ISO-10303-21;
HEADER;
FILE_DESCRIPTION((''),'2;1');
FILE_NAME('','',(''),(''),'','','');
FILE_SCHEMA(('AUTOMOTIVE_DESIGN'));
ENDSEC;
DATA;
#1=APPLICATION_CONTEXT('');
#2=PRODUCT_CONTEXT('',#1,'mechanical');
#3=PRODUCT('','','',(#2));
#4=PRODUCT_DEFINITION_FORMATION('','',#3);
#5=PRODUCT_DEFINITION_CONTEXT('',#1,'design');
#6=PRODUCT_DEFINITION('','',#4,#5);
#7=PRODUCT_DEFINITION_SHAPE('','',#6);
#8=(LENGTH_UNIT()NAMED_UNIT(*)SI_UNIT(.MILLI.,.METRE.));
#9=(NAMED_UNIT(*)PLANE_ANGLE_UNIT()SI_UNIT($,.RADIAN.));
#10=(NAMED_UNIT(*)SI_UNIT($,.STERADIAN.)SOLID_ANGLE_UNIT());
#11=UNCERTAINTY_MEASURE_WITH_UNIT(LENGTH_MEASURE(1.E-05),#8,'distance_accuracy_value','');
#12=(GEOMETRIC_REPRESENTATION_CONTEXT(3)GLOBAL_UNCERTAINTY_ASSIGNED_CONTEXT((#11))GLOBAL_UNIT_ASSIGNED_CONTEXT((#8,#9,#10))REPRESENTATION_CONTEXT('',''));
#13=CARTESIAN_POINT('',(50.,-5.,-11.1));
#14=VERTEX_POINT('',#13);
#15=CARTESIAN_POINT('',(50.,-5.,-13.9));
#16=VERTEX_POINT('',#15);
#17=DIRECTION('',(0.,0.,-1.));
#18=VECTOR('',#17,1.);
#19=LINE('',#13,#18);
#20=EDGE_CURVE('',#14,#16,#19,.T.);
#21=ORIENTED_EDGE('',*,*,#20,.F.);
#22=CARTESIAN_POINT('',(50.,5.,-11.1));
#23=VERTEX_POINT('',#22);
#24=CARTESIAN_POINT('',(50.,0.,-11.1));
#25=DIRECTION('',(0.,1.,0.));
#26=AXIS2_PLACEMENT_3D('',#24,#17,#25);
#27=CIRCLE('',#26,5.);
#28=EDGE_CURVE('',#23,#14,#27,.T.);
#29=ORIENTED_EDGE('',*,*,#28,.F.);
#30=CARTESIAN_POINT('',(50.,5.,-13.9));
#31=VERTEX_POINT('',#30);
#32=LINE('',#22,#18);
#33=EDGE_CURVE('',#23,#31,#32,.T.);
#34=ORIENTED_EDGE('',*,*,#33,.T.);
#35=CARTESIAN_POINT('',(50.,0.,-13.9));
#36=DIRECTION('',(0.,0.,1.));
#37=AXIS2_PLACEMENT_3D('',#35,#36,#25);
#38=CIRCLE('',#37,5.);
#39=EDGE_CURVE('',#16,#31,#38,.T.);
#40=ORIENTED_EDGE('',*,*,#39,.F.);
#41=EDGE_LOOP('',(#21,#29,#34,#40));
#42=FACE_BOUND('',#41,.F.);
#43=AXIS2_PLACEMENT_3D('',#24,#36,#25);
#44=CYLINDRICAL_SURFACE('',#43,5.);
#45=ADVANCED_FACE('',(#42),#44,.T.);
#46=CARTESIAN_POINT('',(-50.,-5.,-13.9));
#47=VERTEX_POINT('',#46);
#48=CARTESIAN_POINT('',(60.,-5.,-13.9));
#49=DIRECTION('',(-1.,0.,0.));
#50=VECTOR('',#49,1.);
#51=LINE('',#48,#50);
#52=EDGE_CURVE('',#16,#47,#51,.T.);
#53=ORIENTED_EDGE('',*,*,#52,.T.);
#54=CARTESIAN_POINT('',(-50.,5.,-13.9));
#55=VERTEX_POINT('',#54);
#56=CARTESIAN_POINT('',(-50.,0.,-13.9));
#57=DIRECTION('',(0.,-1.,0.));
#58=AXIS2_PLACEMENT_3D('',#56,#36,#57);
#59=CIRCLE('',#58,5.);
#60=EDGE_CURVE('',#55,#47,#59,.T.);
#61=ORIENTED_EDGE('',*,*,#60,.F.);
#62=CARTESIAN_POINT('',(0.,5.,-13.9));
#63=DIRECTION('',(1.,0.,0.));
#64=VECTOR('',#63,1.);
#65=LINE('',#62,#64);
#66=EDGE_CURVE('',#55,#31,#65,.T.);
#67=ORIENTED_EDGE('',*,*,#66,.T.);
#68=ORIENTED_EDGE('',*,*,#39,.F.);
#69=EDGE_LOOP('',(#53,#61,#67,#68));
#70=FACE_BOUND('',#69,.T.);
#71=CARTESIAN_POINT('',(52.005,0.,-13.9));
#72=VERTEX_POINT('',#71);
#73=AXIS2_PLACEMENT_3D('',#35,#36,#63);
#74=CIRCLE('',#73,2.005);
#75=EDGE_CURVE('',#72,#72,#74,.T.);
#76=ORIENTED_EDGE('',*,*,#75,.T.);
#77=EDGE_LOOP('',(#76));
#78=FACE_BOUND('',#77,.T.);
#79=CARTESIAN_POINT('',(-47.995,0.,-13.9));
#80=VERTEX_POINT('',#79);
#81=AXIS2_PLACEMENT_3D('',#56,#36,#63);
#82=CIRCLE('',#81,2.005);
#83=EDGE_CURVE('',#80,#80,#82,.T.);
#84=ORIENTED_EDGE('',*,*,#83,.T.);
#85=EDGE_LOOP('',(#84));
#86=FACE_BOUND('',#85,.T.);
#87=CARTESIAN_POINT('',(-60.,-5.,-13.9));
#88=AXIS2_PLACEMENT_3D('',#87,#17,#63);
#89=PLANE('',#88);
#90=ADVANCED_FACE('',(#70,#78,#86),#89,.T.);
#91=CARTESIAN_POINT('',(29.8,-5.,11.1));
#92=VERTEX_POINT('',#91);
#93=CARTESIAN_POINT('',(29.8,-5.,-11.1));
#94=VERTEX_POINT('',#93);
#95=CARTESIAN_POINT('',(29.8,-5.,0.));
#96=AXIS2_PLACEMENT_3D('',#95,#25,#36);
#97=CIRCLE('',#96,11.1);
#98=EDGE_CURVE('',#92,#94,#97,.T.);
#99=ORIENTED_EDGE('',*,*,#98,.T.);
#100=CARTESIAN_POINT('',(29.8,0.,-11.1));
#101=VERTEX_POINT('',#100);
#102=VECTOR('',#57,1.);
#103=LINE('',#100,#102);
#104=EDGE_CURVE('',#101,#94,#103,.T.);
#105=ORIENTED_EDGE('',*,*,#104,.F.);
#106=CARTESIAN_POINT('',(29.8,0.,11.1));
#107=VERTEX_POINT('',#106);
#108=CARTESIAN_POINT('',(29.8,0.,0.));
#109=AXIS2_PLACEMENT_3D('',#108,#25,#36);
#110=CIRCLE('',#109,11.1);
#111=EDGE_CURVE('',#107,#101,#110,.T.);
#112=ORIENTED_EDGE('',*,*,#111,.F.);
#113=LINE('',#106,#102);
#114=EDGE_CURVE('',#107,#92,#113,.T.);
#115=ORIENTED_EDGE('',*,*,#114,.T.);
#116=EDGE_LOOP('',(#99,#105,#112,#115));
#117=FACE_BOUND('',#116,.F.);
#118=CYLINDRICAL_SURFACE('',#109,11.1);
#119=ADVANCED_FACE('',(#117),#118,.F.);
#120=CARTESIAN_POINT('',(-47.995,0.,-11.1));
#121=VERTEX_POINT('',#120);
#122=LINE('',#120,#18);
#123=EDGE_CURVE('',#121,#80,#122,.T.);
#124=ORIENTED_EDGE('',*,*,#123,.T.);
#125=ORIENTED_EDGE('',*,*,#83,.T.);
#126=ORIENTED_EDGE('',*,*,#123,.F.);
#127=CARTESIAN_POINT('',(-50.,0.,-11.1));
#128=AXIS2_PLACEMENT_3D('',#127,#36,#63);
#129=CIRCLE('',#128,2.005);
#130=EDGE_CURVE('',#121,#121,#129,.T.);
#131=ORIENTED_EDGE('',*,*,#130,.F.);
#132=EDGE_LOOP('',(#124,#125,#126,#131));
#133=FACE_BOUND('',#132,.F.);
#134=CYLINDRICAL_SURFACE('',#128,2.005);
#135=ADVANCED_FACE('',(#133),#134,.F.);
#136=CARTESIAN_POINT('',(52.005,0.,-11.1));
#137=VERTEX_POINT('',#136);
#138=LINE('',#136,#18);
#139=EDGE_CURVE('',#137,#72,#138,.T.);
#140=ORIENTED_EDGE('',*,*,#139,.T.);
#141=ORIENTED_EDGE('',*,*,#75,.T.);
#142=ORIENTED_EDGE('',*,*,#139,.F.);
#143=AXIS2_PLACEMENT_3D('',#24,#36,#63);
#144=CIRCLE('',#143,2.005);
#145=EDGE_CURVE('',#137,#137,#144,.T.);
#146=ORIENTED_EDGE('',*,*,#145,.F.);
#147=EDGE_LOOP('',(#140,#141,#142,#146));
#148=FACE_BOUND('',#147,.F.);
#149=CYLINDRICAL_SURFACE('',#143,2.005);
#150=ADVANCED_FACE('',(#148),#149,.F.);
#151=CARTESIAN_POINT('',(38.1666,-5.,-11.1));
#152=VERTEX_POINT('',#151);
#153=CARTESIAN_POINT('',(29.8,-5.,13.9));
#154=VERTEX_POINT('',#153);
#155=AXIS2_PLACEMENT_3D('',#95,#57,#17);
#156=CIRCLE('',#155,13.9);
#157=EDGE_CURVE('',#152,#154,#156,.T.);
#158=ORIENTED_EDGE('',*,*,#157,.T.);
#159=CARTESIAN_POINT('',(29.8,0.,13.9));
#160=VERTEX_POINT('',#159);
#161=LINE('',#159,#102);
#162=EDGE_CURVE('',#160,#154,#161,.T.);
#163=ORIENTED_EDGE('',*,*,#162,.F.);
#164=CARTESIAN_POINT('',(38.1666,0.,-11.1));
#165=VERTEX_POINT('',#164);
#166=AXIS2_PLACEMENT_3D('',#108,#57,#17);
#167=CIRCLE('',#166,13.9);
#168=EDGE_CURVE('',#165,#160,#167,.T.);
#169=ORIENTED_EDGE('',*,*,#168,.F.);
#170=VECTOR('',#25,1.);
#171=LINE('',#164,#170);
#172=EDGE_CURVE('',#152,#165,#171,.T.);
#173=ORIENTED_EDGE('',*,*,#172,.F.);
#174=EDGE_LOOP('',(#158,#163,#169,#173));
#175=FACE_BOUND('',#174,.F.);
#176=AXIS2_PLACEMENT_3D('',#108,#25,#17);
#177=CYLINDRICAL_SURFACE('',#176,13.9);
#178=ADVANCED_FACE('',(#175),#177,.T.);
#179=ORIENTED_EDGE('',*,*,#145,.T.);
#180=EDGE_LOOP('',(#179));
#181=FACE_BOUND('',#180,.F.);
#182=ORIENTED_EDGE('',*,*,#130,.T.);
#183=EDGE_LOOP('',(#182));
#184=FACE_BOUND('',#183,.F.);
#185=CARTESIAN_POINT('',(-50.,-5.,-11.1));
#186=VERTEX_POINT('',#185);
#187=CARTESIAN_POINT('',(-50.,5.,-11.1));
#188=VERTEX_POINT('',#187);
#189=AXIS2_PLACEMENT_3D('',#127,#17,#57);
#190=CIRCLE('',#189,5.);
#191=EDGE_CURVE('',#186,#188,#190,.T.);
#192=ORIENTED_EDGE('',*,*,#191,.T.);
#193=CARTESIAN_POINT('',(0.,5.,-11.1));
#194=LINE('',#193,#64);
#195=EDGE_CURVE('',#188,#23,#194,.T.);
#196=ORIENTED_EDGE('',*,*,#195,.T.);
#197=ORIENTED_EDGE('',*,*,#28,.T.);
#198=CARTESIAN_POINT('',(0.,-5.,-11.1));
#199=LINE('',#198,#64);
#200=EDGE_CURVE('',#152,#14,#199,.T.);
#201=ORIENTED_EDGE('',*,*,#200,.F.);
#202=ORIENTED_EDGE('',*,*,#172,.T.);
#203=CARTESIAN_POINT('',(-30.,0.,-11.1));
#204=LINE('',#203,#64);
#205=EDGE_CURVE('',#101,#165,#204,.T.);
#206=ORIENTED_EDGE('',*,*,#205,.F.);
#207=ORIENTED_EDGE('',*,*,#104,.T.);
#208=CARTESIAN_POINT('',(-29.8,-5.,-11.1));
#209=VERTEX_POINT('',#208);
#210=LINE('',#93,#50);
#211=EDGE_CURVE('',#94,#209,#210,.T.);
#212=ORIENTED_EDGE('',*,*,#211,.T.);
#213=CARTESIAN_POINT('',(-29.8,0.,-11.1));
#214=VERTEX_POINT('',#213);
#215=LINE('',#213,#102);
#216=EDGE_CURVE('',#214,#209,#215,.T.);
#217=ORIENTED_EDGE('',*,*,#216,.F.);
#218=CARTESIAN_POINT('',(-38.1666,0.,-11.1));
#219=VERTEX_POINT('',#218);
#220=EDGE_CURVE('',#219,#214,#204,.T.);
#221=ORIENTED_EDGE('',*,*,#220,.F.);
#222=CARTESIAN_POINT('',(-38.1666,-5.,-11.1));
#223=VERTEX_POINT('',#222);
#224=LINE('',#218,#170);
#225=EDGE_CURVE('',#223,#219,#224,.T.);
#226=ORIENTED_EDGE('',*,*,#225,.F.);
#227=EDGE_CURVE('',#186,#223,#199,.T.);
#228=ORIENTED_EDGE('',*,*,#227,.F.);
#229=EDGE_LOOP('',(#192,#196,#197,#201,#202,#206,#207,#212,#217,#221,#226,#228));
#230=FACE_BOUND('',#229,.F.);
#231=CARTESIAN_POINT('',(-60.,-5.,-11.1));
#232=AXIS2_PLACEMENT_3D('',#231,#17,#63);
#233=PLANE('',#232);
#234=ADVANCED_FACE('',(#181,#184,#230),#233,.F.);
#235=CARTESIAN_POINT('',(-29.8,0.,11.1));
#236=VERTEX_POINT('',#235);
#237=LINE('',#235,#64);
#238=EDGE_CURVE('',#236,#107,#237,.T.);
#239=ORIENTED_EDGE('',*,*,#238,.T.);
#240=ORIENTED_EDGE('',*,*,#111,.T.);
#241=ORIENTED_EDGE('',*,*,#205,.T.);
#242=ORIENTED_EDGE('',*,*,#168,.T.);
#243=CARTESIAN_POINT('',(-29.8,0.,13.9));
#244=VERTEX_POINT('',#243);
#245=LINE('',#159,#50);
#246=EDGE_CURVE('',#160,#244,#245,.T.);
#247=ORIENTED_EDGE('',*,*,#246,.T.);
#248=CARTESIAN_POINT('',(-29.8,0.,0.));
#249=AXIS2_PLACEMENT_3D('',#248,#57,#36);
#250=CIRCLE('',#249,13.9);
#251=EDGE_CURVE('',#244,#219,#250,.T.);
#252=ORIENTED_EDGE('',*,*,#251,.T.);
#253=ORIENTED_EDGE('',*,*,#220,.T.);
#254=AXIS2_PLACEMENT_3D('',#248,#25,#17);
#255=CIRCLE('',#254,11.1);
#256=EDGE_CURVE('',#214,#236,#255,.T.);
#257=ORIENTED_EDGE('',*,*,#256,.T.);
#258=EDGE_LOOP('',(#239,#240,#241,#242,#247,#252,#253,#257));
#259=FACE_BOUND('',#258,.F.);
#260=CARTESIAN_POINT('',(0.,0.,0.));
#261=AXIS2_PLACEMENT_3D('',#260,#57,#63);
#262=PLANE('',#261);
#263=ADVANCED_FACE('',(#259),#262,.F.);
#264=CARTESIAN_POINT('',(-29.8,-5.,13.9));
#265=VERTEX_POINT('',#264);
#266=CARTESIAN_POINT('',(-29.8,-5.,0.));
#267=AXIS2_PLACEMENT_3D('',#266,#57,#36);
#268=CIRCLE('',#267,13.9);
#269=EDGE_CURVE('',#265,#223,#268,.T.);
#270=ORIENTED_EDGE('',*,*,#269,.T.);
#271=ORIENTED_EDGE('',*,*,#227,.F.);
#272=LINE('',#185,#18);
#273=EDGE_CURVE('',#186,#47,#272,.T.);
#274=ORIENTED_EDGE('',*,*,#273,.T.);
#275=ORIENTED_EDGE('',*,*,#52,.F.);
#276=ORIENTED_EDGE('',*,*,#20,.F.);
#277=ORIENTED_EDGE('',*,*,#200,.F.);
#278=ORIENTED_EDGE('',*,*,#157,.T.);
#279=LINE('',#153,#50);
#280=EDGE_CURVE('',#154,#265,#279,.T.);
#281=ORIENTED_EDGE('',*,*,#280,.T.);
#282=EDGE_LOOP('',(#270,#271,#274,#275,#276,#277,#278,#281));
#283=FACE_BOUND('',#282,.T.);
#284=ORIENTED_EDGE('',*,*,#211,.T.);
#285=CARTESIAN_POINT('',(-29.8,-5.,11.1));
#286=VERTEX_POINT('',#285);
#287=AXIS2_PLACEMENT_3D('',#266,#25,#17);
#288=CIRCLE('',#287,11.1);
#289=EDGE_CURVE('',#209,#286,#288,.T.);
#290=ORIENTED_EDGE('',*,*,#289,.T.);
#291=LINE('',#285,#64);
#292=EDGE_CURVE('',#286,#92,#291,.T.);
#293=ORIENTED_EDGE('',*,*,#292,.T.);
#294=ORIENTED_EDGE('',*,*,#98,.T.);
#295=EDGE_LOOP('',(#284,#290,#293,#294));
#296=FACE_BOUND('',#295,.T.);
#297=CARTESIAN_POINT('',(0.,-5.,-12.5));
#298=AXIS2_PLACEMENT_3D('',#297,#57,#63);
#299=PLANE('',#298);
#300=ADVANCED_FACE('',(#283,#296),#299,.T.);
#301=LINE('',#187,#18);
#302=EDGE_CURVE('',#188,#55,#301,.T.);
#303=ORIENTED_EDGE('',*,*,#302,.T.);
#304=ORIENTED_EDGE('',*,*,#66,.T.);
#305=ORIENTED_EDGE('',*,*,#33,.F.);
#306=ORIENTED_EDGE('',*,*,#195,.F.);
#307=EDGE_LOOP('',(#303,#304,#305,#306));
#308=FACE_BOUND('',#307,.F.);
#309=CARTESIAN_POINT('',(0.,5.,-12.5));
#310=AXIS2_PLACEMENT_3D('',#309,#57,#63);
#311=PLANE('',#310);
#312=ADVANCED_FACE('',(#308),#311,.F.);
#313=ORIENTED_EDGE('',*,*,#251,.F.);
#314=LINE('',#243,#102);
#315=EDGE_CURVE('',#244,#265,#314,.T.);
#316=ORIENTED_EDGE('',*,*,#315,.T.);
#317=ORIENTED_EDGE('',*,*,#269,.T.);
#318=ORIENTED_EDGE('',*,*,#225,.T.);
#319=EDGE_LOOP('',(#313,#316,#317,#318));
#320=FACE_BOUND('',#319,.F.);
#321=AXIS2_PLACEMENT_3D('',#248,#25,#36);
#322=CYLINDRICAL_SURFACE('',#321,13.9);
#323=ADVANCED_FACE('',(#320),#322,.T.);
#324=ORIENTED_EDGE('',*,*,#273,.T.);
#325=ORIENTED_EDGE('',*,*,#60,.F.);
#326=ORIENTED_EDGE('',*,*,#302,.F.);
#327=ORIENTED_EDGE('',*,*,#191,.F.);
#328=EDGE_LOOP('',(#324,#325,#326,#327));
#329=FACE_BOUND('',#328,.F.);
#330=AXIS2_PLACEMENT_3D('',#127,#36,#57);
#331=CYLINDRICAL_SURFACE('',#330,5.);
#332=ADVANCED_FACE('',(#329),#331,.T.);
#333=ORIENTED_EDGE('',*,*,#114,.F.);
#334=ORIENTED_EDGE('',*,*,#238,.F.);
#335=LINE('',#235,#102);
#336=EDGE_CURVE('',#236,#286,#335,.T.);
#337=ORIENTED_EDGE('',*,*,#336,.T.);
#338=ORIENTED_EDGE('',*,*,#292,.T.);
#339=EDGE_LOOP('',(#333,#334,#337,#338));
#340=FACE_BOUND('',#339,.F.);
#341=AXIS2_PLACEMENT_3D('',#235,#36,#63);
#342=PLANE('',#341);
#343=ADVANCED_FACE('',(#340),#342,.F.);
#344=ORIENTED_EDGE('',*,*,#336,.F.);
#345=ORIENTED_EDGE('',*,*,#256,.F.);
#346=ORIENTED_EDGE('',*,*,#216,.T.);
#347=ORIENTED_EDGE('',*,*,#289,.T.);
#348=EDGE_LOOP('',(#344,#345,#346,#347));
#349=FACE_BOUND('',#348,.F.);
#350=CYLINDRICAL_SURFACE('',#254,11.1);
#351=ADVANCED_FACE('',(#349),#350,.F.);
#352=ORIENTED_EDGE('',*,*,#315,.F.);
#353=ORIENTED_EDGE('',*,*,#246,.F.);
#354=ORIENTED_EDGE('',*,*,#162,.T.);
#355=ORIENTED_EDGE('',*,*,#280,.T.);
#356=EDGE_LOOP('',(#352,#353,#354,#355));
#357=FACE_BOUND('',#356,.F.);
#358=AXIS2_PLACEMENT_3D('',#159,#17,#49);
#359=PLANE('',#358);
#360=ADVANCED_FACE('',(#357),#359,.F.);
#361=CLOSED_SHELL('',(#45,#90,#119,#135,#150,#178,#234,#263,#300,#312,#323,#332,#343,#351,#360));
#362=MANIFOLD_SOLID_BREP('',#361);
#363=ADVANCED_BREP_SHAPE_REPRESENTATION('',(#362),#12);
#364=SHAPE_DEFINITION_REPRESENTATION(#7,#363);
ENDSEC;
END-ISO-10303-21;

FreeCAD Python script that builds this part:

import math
import FreeCAD as App
import Part
import Sketcher

V = App.Vector


def add_polygon(sketch, points):
    """Adds a closed chain of lines whose ends are joined by coincident constraints."""
    first, n = sketch.GeometryCount, len(points)
    for a, b in zip(points, points[1:] + points[:1]):
        sketch.addGeometry(Part.LineSegment(App.Vector(*a, 0), App.Vector(*b, 0)), False)
    for i in range(n):
        sketch.addConstraint(Sketcher.Constraint("Coincident", first + i, 2, first + (i + 1) % n, 1))

doc = App.newDocument("Part")
body = doc.addObject("PartDesign::Body", "Body")

# Sketch on XZ plane
sketch1 = doc.addObject("Sketcher::SketchObject", "Sketch")
body.addObject(sketch1)
sketch1.AttachmentSupport = (doc.XZ_Plane, [""])
sketch1.MapMode = "FlatFace"
sketch1.addGeometry([
    Part.LineSegment(V(-29.8, -13.9, 0), V(29.8, -13.9, 0)),  # 0
    Part.ArcOfCircle(Part.Circle(V(29.8, 0, 0), V(0, 0, 1), 13.9), math.radians(-90), math.radians(90)),  # 1
    Part.LineSegment(V(29.8, 13.9, 0), V(-29.8, 13.9, 0)),  # 2
    Part.ArcOfCircle(Part.Circle(V(-29.8, 0, 0), V(0, 0, 1), 13.9), math.radians(90), math.radians(270)),  # 3
    Part.LineSegment(V(-29.8, 11.1, 0), V(29.8, 11.1, 0)),  # 4
    Part.ArcOfCircle(Part.Circle(V(29.8, 0, 0), V(0, 0, 1), 11.1), math.radians(-90), math.radians(90)),  # 5
    Part.LineSegment(V(29.8, -11.1, 0), V(-29.8, -11.1, 0)),  # 6
    Part.ArcOfCircle(Part.Circle(V(-29.8, 0, 0), V(0, 0, 1), 11.1), math.radians(90), math.radians(270)),  # 7
], False)
sketch1.addConstraint([
    Sketcher.Constraint("Tangent", 0, 2, 1, 1),
    Sketcher.Constraint("Tangent", 1, 2, 2, 1),
    Sketcher.Constraint("Tangent", 2, 2, 3, 1),
    Sketcher.Constraint("Tangent", 3, 2, 0, 1),
    Sketcher.Constraint("Tangent", 4, 2, 5, 2),
    Sketcher.Constraint("Tangent", 5, 1, 6, 1),
    Sketcher.Constraint("Tangent", 6, 2, 7, 2),
    Sketcher.Constraint("Tangent", 7, 1, 4, 1),
    Sketcher.Constraint("Horizontal", 0),
    Sketcher.Constraint("Horizontal", 2),
    Sketcher.Constraint("Horizontal", 4),
    Sketcher.Constraint("Horizontal", 6),
    Sketcher.Constraint("Coincident", 5, 3, 1, 3),
    Sketcher.Constraint("Symmetric", 1, 3, 3, 3, -1, 1),
    Sketcher.Constraint("Vertical", 7, 3, 2, 2),
    Sketcher.Constraint("Radius", 1, 13.9),
    Sketcher.Constraint("Radius", 5, 11.1),
    Sketcher.Constraint("DistanceX", 0, 1, 0, 2, 59.6),
])
pad1 = doc.addObject("PartDesign::Pad", "Pad")
body.addObject(pad1)
pad1.Profile = sketch1
pad1.Length = 5

# Sketch on XZ plane
sketch2 = doc.addObject("Sketcher::SketchObject", "Sketch001")
body.addObject(sketch2)
sketch2.AttachmentSupport = (doc.XZ_Plane, [""])
sketch2.MapMode = "FlatFace"
sketch2.AttachmentOffset = App.Placement(V(0, 0, 5), App.Rotation())
add_polygon(sketch2, [(-60, -11.1), (-60, -13.9), (60, -13.9), (60, -11.1)])  # lines 0-3
sketch2.addConstraint([
    Sketcher.Constraint("Vertical", 0),
    Sketcher.Constraint("Horizontal", 1),
    Sketcher.Constraint("Vertical", 2),
    Sketcher.Constraint("Horizontal", 3),
    Sketcher.Constraint("DistanceX", 1, 1, 1, 2, 120.0),
    Sketcher.Constraint("DistanceY", 0, 2, 0, 1, 2.8),
    Sketcher.Constraint("DistanceX", 0, 2, -1, 1, 60.0),
    Sketcher.Constraint("DistanceY", 0, 2, -1, 1, 13.9),
])
pad2 = doc.addObject("PartDesign::Pad", "Pad001")
body.addObject(pad2)
pad2.Profile = sketch2
pad2.Length = 10
pad2.Reversed = True

# Sketch on XY plane
sketch3 = doc.addObject("Sketcher::SketchObject", "Sketch002")
body.addObject(sketch3)
sketch3.AttachmentSupport = (doc.XY_Plane, [""])
sketch3.MapMode = "FlatFace"
sketch3.AttachmentOffset = App.Placement(V(0, 0, -11.1), App.Rotation())
sketch3.addGeometry([
    Part.Circle(V(50, 0, 0), V(0, 0, 1), 2.005),
    Part.Circle(V(-50, 0, 0), V(0, 0, 1), 2.005),
], False)
sketch3.addConstraint([
    Sketcher.Constraint("Equal", 0, 1),
    Sketcher.Constraint("Symmetric", 0, 3, 1, 3, -1, 1),
    Sketcher.Constraint("PointOnObject", 0, 3, -1),
    Sketcher.Constraint("Diameter", 0, 4.01),
    Sketcher.Constraint("DistanceX", -1, 1, 0, 3, 50.0),
])
pocket1 = doc.addObject("PartDesign::Pocket", "Pocket")
body.addObject(pocket1)
pocket1.Profile = sketch3
pocket1.Type = "ThroughAll"

# Sketch on XY plane
sketch4 = doc.addObject("Sketcher::SketchObject", "Sketch003")
body.addObject(sketch4)
sketch4.AttachmentSupport = (doc.XY_Plane, [""])
sketch4.MapMode = "FlatFace"
sketch4.AttachmentOffset = App.Placement(V(0, 0, -11.1), App.Rotation())
sketch4.addGeometry([
    Part.ArcOfCircle(Part.Circle(V(-50, 0, 0), V(0, 0, 1), 5), math.radians(90), math.radians(270)),  # 0
    Part.LineSegment(V(-50, 5, 0), V(-60, 5, 0)),  # 1
    Part.LineSegment(V(-60, 5, 0), V(-60, -5, 0)),  # 2
    Part.LineSegment(V(-60, -5, 0), V(-50, -5, 0)),  # 3
    Part.LineSegment(V(60, 5, 0), V(50, 5, 0)),  # 4
    Part.ArcOfCircle(Part.Circle(V(50, 0, 0), V(0, 0, 1), 5), math.radians(-90), math.radians(90)),  # 5
    Part.LineSegment(V(50, -5, 0), V(60, -5, 0)),  # 6
    Part.LineSegment(V(60, -5, 0), V(60, 5, 0)),  # 7
], False)
sketch4.addConstraint([
    Sketcher.Constraint("Tangent", 0, 1, 1, 1),
    Sketcher.Constraint("Coincident", 1, 2, 2, 1),
    Sketcher.Constraint("Coincident", 2, 2, 3, 1),
    Sketcher.Constraint("Tangent", 3, 2, 0, 2),
    Sketcher.Constraint("Tangent", 4, 2, 5, 2),
    Sketcher.Constraint("Tangent", 5, 1, 6, 1),
    Sketcher.Constraint("Coincident", 6, 2, 7, 1),
    Sketcher.Constraint("Coincident", 7, 2, 4, 1),
    Sketcher.Constraint("Horizontal", 1),
    Sketcher.Constraint("Vertical", 2),
    Sketcher.Constraint("Horizontal", 3),
    Sketcher.Constraint("Horizontal", 4),
    Sketcher.Constraint("Horizontal", 6),
    Sketcher.Constraint("Vertical", 7),
    Sketcher.Constraint("Equal", 0, 5),
    Sketcher.Constraint("Symmetric", 0, 3, 5, 3, -1, 1),
    Sketcher.Constraint("Symmetric", 2, 2, 6, 2, -2),
    Sketcher.Constraint("Equal", 6, 2),
    Sketcher.Constraint("Radius", 0, 5.0),
    Sketcher.Constraint("DistanceX", 0, 3, -1, 1, 50.0),
])
pocket2 = doc.addObject("PartDesign::Pocket", "Pocket001")
body.addObject(pocket2)
pocket2.Profile = sketch4
pocket2.Type = "ThroughAll"

doc.recompute()
